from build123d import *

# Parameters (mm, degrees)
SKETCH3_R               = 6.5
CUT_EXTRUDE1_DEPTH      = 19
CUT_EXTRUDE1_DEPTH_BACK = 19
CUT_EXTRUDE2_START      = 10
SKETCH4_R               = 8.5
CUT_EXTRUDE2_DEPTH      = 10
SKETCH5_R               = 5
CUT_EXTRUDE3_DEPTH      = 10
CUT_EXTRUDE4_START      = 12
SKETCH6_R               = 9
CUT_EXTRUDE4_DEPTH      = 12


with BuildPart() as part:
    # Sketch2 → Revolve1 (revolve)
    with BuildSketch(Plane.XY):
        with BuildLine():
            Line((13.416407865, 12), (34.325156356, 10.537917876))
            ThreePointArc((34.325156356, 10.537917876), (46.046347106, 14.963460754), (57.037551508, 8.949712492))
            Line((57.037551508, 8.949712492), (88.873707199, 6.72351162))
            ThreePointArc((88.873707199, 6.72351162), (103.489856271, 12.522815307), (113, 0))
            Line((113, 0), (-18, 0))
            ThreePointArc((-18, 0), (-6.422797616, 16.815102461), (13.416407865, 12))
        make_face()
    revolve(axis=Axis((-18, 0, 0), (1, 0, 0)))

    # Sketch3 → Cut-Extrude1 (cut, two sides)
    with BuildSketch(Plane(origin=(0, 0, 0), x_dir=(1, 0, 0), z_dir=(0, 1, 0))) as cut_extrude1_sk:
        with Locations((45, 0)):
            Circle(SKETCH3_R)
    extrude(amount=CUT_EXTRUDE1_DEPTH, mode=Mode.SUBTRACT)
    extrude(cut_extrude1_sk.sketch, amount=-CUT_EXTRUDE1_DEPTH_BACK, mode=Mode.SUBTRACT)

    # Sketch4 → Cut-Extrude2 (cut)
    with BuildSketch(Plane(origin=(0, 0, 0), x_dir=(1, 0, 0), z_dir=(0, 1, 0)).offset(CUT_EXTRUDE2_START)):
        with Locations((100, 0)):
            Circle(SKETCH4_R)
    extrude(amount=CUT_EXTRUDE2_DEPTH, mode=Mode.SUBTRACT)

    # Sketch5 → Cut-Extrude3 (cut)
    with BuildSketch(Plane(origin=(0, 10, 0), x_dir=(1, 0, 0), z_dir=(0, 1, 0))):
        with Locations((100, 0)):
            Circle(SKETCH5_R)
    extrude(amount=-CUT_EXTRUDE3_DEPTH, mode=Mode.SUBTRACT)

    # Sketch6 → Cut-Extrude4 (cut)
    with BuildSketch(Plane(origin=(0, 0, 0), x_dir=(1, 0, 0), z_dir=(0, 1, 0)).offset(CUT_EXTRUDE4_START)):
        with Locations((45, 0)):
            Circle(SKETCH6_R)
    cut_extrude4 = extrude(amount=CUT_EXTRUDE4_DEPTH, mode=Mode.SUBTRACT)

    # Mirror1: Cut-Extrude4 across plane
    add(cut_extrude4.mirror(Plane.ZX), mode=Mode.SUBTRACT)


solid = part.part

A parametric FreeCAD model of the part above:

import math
import FreeCAD as App
import Part
import Sketcher

V = App.Vector
Q = App.Units.Quantity

doc = App.newDocument("Part")
params = doc.addObject("Spreadsheet::Sheet", "Params")
for row, (alias, value) in enumerate([
    ("sketch1_radius", "18 mm"),
    ("sketch1_radius2", "13 mm"),
    ("sketch1_radius3", "15 mm"),
    ("sketch1_width", "131 mm"),
    ("revolution_angle", "360 deg"),
    ("sketch2_diameter", "13 mm"),
    ("sketch3_diameter", "17 mm"),
    ("pocket2_length", "10 mm"),
    ("sketch4_diameter", "10 mm"),
    ("pocket3_length", "10 mm"),
    ("sketch5_diameter", "18 mm"),
    ("pocket4_length", "12 mm"),
], start=1):
    params.set(f"A{row}", alias)
    params.set(f"B{row}", "=" + value)
    params.setAlias(f"B{row}", alias)

body = doc.addObject("PartDesign::Body", "Body")

sketch1 = body.newObject("Sketcher::SketchObject", "Sketch")
sketch1.AttachmentSupport = (doc.getObject("XY_Plane"), [""])
sketch1.MapMode = "FlatFace"
sketch1.addGeometry([
    Part.LineSegment(V(34, 11, 0), V(13, 12, 0)),
    Part.ArcOfCircle(Part.Circle(V(0, 0, 0), V(0, 0, 1), 18), math.radians(42), math.radians(180)),
    Part.LineSegment(V(-18, 0, 0), V(113, 0, 0)),
    Part.ArcOfCircle(Part.Circle(V(100, 0, 0), V(0, 0, 1), 13), math.radians(0), math.radians(149)),
    Part.LineSegment(V(89, 7, 0), V(57, 9, 0)),
    Part.ArcOfCircle(Part.Circle(V(45, 0, 0), V(0, 0, 1), 15), math.radians(37), math.radians(135)),
], False)
sketch1.addConstraint([
    Sketcher.Constraint("Coincident", 0, 2, 1, 1),
    Sketcher.Constraint("Coincident", 1, 2, 2, 1),
    Sketcher.Constraint("Coincident", 2, 2, 3, 1),
    Sketcher.Constraint("Coincident", 3, 2, 4, 1),
    Sketcher.Constraint("Coincident", 4, 2, 5, 1),
    Sketcher.Constraint("Coincident", 5, 2, 0, 1),
    Sketcher.Constraint("Horizontal", 2),
    Sketcher.Constraint("Coincident", 1, 3, -1, 1),
    Sketcher.Constraint("PointOnObject", 3, 3, -1),
    Sketcher.Constraint("PointOnObject", 5, 3, -1),
    Sketcher.Constraint("PointOnObject", 1, 2, -1),
    Sketcher.Constraint("Parallel", 0, 4),
    Sketcher.Constraint("Radius", 1, Q("18 mm")),
    Sketcher.Constraint("Radius", 3, Q("13 mm")),
    Sketcher.Constraint("Radius", 5, Q("15 mm")),
    Sketcher.Constraint("DistanceX", 2, 1, 2, 2, Q("131 mm")),
    Sketcher.Constraint("Angle", 0, Q("176 deg")),
    Sketcher.Constraint("DistanceX", -1, 1, 5, 3, Q("45 mm")),
    Sketcher.Constraint("DistanceY", -1, 1, 0, 2, Q("12 mm")),
    Sketcher.Constraint("DistanceX", 0, 2, 3, 2, Q("75.457299 mm")),
])
sketch1.setExpression("Constraints[12]", "Params.sketch1_radius")
sketch1.setExpression("Constraints[13]", "Params.sketch1_radius2")
sketch1.setExpression("Constraints[14]", "Params.sketch1_radius3")
sketch1.setExpression("Constraints[15]", "Params.sketch1_width")
revolution = body.newObject("PartDesign::Revolution", "Revolution")
revolution.Profile = sketch1
revolution.ReferenceAxis = (sketch1, ["H_Axis"])
revolution.setExpression("Angle", "Params.revolution_angle")

sketch2 = body.newObject("Sketcher::SketchObject", "Sketch001")
sketch2.AttachmentSupport = (doc.getObject("XZ_Plane"), [""])
sketch2.MapMode = "FlatFace"
sketch2.addGeometry(Part.Circle(V(45, 0, 0), V(0, 0, 1), 6), False)
sketch2.addConstraint([
    Sketcher.Constraint("PointOnObject", 0, 3, -1),
    Sketcher.Constraint("Diameter", 0, Q("13 mm")),
    Sketcher.Constraint("DistanceX", -1, 1, 0, 3, Q("45 mm")),
])
sketch2.setExpression("Constraints[1]", "Params.sketch2_diameter")
pocket1 = body.newObject("PartDesign::Pocket", "Pocket")
pocket1.Profile = sketch2
pocket1.Type = "ThroughAll"
pocket1.Midplane = True

sketch3 = body.newObject("Sketcher::SketchObject", "Sketch002")
sketch3.AttachmentSupport = (doc.getObject("XZ_Plane"), [""])
sketch3.MapMode = "FlatFace"
sketch3.AttachmentOffset = App.Placement(V(0, 0, -10), App.Rotation())
sketch3.addGeometry(Part.Circle(V(100, 0, 0), V(0, 0, 1), 8), False)
sketch3.addConstraint([
    Sketcher.Constraint("PointOnObject", 0, 3, -1),
    Sketcher.Constraint("Diameter", 0, Q("17 mm")),
    Sketcher.Constraint("DistanceX", -1, 1, 0, 3, Q("100 mm")),
])
sketch3.setExpression("Constraints[1]", "Params.sketch3_diameter")
pocket2 = body.newObject("PartDesign::Pocket", "Pocket001")
pocket2.Profile = sketch3
pocket2.setExpression("Length", "Params.pocket2_length")

sketch4 = body.newObject("Sketcher::SketchObject", "Sketch003")
sketch4.AttachmentSupport = (doc.getObject("XZ_Plane"), [""])
sketch4.MapMode = "FlatFace"
sketch4.AttachmentOffset = App.Placement(V(0, 0, -10), App.Rotation())
sketch4.addGeometry(Part.Circle(V(100, 0, 0), V(0, 0, 1), 5), False)
sketch4.addConstraint([
    Sketcher.Constraint("PointOnObject", 0, 3, -1),
    Sketcher.Constraint("Diameter", 0, Q("10 mm")),
    Sketcher.Constraint("DistanceX", -1, 1, 0, 3, Q("100 mm")),
])
sketch4.setExpression("Constraints[1]", "Params.sketch4_diameter")
pocket3 = body.newObject("PartDesign::Pocket", "Pocket002")
pocket3.Profile = sketch4
pocket3.setExpression("Length", "Params.pocket3_length")
pocket3.Reversed = True

sketch5 = body.newObject("Sketcher::SketchObject", "Sketch004")
sketch5.AttachmentSupport = (doc.getObject("XZ_Plane"), [""])
sketch5.MapMode = "FlatFace"
sketch5.AttachmentOffset = App.Placement(V(0, 0, -12), App.Rotation())
sketch5.addGeometry(Part.Circle(V(45, 0, 0), V(0, 0, 1), 9), False)
sketch5.addConstraint([
    Sketcher.Constraint("PointOnObject", 0, 3, -1),
    Sketcher.Constraint("Diameter", 0, Q("18 mm")),
    Sketcher.Constraint("DistanceX", -1, 1, 0, 3, Q("45 mm")),
])
sketch5.setExpression("Constraints[1]", "Params.sketch5_diameter")
pocket4 = body.newObject("PartDesign::Pocket", "Pocket003")
pocket4.Profile = sketch5
pocket4.setExpression("Length", "Params.pocket4_length")
doc.recompute()

mirrored = body.newObject("PartDesign::Mirrored", "Mirrored")
mirrored.Originals = [pocket4]
mirrored.MirrorPlane = (doc.getObject("XZ_Plane"), [""])
body.Tip = mirrored

doc.recompute()
